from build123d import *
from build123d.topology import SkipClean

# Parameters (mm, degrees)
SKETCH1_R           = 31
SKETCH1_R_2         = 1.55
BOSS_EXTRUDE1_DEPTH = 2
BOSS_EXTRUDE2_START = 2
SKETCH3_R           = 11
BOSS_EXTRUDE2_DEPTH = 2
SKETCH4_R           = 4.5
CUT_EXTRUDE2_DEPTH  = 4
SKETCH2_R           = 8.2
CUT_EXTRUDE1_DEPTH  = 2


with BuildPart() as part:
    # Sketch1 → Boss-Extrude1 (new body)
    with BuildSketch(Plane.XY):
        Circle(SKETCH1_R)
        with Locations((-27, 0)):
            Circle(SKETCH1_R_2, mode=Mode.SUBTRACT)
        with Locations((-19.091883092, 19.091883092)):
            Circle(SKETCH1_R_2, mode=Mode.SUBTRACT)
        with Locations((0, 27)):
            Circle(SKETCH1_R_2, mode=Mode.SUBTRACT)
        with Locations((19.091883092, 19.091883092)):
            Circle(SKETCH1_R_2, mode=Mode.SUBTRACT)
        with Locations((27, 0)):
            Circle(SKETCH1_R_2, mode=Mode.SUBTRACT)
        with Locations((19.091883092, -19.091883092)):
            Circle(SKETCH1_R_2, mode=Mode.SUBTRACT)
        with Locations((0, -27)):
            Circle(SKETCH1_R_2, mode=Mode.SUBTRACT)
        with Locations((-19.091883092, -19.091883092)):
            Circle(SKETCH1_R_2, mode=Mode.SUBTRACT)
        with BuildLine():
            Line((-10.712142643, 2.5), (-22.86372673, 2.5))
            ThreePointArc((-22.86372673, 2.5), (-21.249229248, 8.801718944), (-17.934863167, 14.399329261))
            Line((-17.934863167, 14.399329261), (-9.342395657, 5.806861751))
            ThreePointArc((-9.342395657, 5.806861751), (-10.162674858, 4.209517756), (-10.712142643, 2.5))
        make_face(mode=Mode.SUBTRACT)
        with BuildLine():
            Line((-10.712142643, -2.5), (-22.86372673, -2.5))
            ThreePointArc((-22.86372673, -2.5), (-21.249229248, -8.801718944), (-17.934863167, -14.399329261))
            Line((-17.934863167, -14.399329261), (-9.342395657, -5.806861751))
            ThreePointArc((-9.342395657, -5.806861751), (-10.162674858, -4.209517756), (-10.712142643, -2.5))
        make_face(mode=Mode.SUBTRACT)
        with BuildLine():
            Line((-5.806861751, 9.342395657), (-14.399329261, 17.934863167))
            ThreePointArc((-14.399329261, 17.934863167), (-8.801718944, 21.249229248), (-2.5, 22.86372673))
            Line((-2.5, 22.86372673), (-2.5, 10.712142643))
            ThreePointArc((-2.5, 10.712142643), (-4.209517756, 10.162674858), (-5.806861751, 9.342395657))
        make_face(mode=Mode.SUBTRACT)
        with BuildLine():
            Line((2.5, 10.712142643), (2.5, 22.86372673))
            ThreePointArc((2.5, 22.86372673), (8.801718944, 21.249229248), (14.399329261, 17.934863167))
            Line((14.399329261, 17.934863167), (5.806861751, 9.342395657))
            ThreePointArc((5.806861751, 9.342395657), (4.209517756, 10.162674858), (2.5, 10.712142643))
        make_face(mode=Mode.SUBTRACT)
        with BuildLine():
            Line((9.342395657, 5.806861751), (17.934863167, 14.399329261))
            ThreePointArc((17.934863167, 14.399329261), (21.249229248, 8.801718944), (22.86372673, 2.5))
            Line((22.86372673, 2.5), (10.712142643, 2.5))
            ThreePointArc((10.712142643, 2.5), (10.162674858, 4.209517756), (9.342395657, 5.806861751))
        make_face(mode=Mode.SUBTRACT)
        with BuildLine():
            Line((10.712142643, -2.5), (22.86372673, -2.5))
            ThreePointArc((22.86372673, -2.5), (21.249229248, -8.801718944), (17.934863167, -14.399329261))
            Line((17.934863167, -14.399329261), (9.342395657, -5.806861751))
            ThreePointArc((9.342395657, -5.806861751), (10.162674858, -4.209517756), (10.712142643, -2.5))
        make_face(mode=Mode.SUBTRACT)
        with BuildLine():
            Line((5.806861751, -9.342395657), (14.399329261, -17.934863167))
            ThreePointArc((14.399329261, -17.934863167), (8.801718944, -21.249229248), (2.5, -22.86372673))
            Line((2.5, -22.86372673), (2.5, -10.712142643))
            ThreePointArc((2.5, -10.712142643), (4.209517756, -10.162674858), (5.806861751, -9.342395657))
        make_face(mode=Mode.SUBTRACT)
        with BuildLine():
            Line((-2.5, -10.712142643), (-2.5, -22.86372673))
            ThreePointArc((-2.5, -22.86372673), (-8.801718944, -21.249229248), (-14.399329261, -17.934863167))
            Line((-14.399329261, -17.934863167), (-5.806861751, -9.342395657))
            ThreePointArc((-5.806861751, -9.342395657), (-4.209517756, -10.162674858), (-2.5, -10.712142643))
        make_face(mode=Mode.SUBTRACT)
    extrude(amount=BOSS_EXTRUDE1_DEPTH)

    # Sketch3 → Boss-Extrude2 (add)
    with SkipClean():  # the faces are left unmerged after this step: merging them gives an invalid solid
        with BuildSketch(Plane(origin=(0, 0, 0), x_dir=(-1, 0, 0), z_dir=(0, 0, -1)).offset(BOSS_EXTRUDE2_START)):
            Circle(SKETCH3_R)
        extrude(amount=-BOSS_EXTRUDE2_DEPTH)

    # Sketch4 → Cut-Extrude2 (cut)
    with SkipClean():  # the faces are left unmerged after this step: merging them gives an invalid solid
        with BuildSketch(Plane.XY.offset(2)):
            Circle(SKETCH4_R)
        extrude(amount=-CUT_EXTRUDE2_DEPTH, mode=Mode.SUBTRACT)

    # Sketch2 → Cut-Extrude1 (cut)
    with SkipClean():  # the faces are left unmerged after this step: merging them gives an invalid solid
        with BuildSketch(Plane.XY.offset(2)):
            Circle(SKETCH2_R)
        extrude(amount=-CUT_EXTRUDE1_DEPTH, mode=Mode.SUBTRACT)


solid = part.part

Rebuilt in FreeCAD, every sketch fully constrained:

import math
import FreeCAD as App
import Part
import Sketcher
from FreeCAD import Vector
Q = App.Units.Quantity

doc = App.newDocument("Part")
body = doc.addObject("PartDesign::Body", "Body")

# Sketch on XY plane
sketch1 = doc.addObject("Sketcher::SketchObject", "Sketch")
body.addObject(sketch1)
sketch1.AttachmentSupport = (doc.XY_Plane, [""])
sketch1.MapMode = "FlatFace"
sketch1.addGeometry([
    Part.Circle(Vector(0, 0, 0), Vector(0, 0, 1), 31),  # 0
    Part.Circle(Vector(-19.1, -19.1, 0), Vector(0, 0, 1), 1.6),  # 1
    Part.ArcOfCircle(Part.Circle(Vector(0, 0, 0), Vector(0, 0, 1), 11), math.radians(-121.86), math.radians(-103.14)),  # 2
    Part.LineSegment(Vector(-2.5, -10.7, 0), Vector(-2.5, -22.9, 0)),  # 3
    Part.ArcOfCircle(Part.Circle(Vector(0, 0, 0), Vector(0, 0, 1), 23), math.radians(-129), math.radians(-96)),  # 4
    Part.LineSegment(Vector(-14.4, -17.9, 0), Vector(-5.8, -9.3, 0)),  # 5
    Part.LineSegment(Vector(-22.9, -2.5, 0), Vector(-10.7, -2.5, 0)),  # 6
    Part.ArcOfCircle(Part.Circle(Vector(0, 0, 0), Vector(0, 0, 1), 11), math.radians(-166.86), math.radians(-148.14)),  # 7
    Part.LineSegment(Vector(-9.3, -5.8, 0), Vector(-17.9, -14.4, 0)),  # 8
    Part.ArcOfCircle(Part.Circle(Vector(0, 0, 0), Vector(0, 0, 1), 23), math.radians(-174), math.radians(-141)),  # 9
    Part.Circle(Vector(0, -27, 0), Vector(0, 0, 1), 1.6),  # 10
    Part.ArcOfCircle(Part.Circle(Vector(0, 0, 0), Vector(0, 0, 1), 11), math.radians(-76.86), math.radians(-58.14)),  # 11
    Part.LineSegment(Vector(5.8, -9.3, 0), Vector(14.4, -17.9, 0)),  # 12
    Part.ArcOfCircle(Part.Circle(Vector(0, 0, 0), Vector(0, 0, 1), 23), math.radians(-84), math.radians(-51)),  # 13
    Part.LineSegment(Vector(2.5, -22.9, 0), Vector(2.5, -10.7, 0)),  # 14
    Part.Circle(Vector(19.1, -19.1, 0), Vector(0, 0, 1), 1.6),  # 15
    Part.ArcOfCircle(Part.Circle(Vector(0, 0, 0), Vector(0, 0, 1), 11), math.radians(-31.86), math.radians(-13.14)),  # 16
    Part.LineSegment(Vector(10.7, -2.5, 0), Vector(22.9, -2.5, 0)),  # 17
    Part.ArcOfCircle(Part.Circle(Vector(0, 0, 0), Vector(0, 0, 1), 23), math.radians(-39), math.radians(-6)),  # 18
    Part.LineSegment(Vector(17.9, -14.4, 0), Vector(9.3, -5.8, 0)),  # 19
    Part.Circle(Vector(-27, 0, 0), Vector(0, 0, 1), 1.6),  # 20
    Part.ArcOfCircle(Part.Circle(Vector(0, 0, 0), Vector(0, 0, 1), 11), math.radians(148.14), math.radians(166.86)),  # 21
    Part.LineSegment(Vector(-10.7, 2.5, 0), Vector(-22.9, 2.5, 0)),  # 22
    Part.ArcOfCircle(Part.Circle(Vector(0, 0, 0), Vector(0, 0, 1), 23), math.radians(141), math.radians(174)),  # 23
    Part.LineSegment(Vector(-17.9, 14.4, 0), Vector(-9.3, 5.8, 0)),  # 24
    Part.Circle(Vector(-19.1, 19.1, 0), Vector(0, 0, 1), 1.6),  # 25
    Part.ArcOfCircle(Part.Circle(Vector(0, 0, 0), Vector(0, 0, 1), 11), math.radians(103.14), math.radians(121.86)),  # 26
    Part.LineSegment(Vector(-5.8, 9.3, 0), Vector(-14.4, 17.9, 0)),  # 27
    Part.ArcOfCircle(Part.Circle(Vector(0, 0, 0), Vector(0, 0, 1), 23), math.radians(96), math.radians(129)),  # 28
    Part.LineSegment(Vector(-2.5, 22.9, 0), Vector(-2.5, 10.7, 0)),  # 29
    Part.Circle(Vector(27, 0, 0), Vector(0, 0, 1), 1.6),  # 30
    Part.ArcOfCircle(Part.Circle(Vector(0, 0, 0), Vector(0, 0, 1), 11), math.radians(13.14), math.radians(31.86)),  # 31
    Part.LineSegment(Vector(9.3, 5.8, 0), Vector(17.9, 14.4, 0)),  # 32
    Part.ArcOfCircle(Part.Circle(Vector(0, 0, 0), Vector(0, 0, 1), 23), math.radians(6), math.radians(39)),  # 33
    Part.LineSegment(Vector(22.9, 2.5, 0), Vector(10.7, 2.5, 0)),  # 34
    Part.ArcOfCircle(Part.Circle(Vector(0, 0, 0), Vector(0, 0, 1), 11), math.radians(58.14), math.radians(76.86)),  # 35
    Part.LineSegment(Vector(2.5, 10.7, 0), Vector(2.5, 22.9, 0)),  # 36
    Part.ArcOfCircle(Part.Circle(Vector(0, 0, 0), Vector(0, 0, 1), 23), math.radians(51), math.radians(84)),  # 37
    Part.LineSegment(Vector(14.4, 17.9, 0), Vector(5.8, 9.3, 0)),  # 38
    Part.Circle(Vector(0, 27, 0), Vector(0, 0, 1), 1.6),  # 39
    Part.Circle(Vector(19.1, 19.1, 0), Vector(0, 0, 1), 1.6),  # 40
], False)
sketch1.addConstraint([
    Sketcher.Constraint("Coincident", 2, 2, 3, 1),
    Sketcher.Constraint("Coincident", 3, 2, 4, 2),
    Sketcher.Constraint("Coincident", 4, 1, 5, 1),
    Sketcher.Constraint("Coincident", 5, 2, 2, 1),
    Sketcher.Constraint("Coincident", 6, 2, 7, 1),
    Sketcher.Constraint("Coincident", 7, 2, 8, 1),
    Sketcher.Constraint("Coincident", 8, 2, 9, 2),
    Sketcher.Constraint("Coincident", 9, 1, 6, 1),
    Sketcher.Constraint("Coincident", 11, 2, 12, 1),
    Sketcher.Constraint("Coincident", 12, 2, 13, 2),
    Sketcher.Constraint("Coincident", 13, 1, 14, 1),
    Sketcher.Constraint("Coincident", 14, 2, 11, 1),
    Sketcher.Constraint("Coincident", 16, 2, 17, 1),
    Sketcher.Constraint("Coincident", 17, 2, 18, 2),
    Sketcher.Constraint("Coincident", 18, 1, 19, 1),
    Sketcher.Constraint("Coincident", 19, 2, 16, 1),
    Sketcher.Constraint("Coincident", 21, 2, 22, 1),
    Sketcher.Constraint("Coincident", 22, 2, 23, 2),
    Sketcher.Constraint("Coincident", 23, 1, 24, 1),
    Sketcher.Constraint("Coincident", 24, 2, 21, 1),
    Sketcher.Constraint("Coincident", 26, 2, 27, 1),
    Sketcher.Constraint("Coincident", 27, 2, 28, 2),
    Sketcher.Constraint("Coincident", 28, 1, 29, 1),
    Sketcher.Constraint("Coincident", 29, 2, 26, 1),
    Sketcher.Constraint("Coincident", 31, 2, 32, 1),
    Sketcher.Constraint("Coincident", 32, 2, 33, 2),
    Sketcher.Constraint("Coincident", 33, 1, 34, 1),
    Sketcher.Constraint("Coincident", 34, 2, 31, 1),
    Sketcher.Constraint("Coincident", 35, 2, 36, 1),
    Sketcher.Constraint("Coincident", 36, 2, 37, 2),
    Sketcher.Constraint("Coincident", 37, 1, 38, 1),
    Sketcher.Constraint("Coincident", 38, 2, 35, 1),
    Sketcher.Constraint("Vertical", 3),
    Sketcher.Constraint("Horizontal", 6),
    Sketcher.Constraint("Vertical", 14),
    Sketcher.Constraint("Horizontal", 17),
    Sketcher.Constraint("Horizontal", 22),
    Sketcher.Constraint("Vertical", 29),
    Sketcher.Constraint("Horizontal", 34),
    Sketcher.Constraint("Vertical", 36),
    Sketcher.Constraint("Coincident", 0, 3, -1, 1),
    Sketcher.Constraint("Coincident", 2, 3, -1, 1),
    Sketcher.Constraint("Coincident", 4, 3, -1, 1),
    Sketcher.Constraint("Coincident", 7, 3, -1, 1),
    Sketcher.Constraint("Coincident", 9, 3, -1, 1),
    Sketcher.Constraint("Coincident", 11, 3, -1, 1),
    Sketcher.Constraint("Coincident", 13, 3, -1, 1),
    Sketcher.Constraint("Coincident", 16, 3, -1, 1),
    Sketcher.Constraint("Coincident", 18, 3, -1, 1),
    Sketcher.Constraint("Coincident", 21, 3, -1, 1),
    Sketcher.Constraint("Coincident", 23, 3, -1, 1),
    Sketcher.Constraint("Coincident", 26, 3, -1, 1),
    Sketcher.Constraint("Coincident", 28, 3, -1, 1),
    Sketcher.Constraint("Coincident", 31, 3, -1, 1),
    Sketcher.Constraint("Coincident", 33, 3, -1, 1),
    Sketcher.Constraint("Coincident", 35, 3, -1, 1),
    Sketcher.Constraint("Coincident", 37, 3, -1, 1),
    Sketcher.Constraint("Equal", 2, 7),
    Sketcher.Constraint("Equal", 4, 9),
    Sketcher.Constraint("Equal", 1, 10),
    Sketcher.Constraint("Equal", 7, 11),
    Sketcher.Constraint("Equal", 9, 13),
    Sketcher.Constraint("Equal", 10, 15),
    Sketcher.Constraint("Equal", 11, 16),
    Sketcher.Constraint("Equal", 13, 18),
    Sketcher.Constraint("Equal", 15, 20),
    Sketcher.Constraint("Equal", 16, 21),
    Sketcher.Constraint("Equal", 18, 23),
    Sketcher.Constraint("Equal", 20, 25),
    Sketcher.Constraint("Equal", 21, 26),
    Sketcher.Constraint("Equal", 23, 28),
    Sketcher.Constraint("Equal", 25, 30),
    Sketcher.Constraint("Equal", 26, 31),
    Sketcher.Constraint("Equal", 28, 33),
    Sketcher.Constraint("Equal", 31, 35),
    Sketcher.Constraint("Equal", 33, 37),
    Sketcher.Constraint("Equal", 30, 39),
    Sketcher.Constraint("Equal", 39, 40),
    Sketcher.Constraint("Symmetric", 15, 3, 25, 3, -1, 1),
    Sketcher.Constraint("Symmetric", 20, 3, 30, 3, -1, 1),
    Sketcher.Constraint("Symmetric", 10, 3, 39, 3, -1, 1),
    Sketcher.Constraint("Symmetric", 1, 3, 40, 3, -1, 1),
    Sketcher.Constraint("Symmetric", 1, 3, 15, 3, -2),
    Sketcher.Constraint("PointOnObject", 10, 3, -2),
    Sketcher.Constraint("PointOnObject", 20, 3, -1),
    Sketcher.Constraint("Parallel", 5, 8),
    Sketcher.Constraint("Perpendicular", 8, 12),
    Sketcher.Constraint("Parallel", 12, 19),
    Sketcher.Constraint("Parallel", 19, 24),
    Sketcher.Constraint("Parallel", 24, 27),
    Sketcher.Constraint("Perpendicular", 27, 32),
    Sketcher.Constraint("Parallel", 32, 38),
    Sketcher.Constraint("Horizontal", 5, 2, 11, 2),
    Sketcher.Constraint("Horizontal", 4, 1, 12, 2),
    Sketcher.Constraint("Horizontal", 3, 2, 13, 1),
    Sketcher.Constraint("Horizontal", 9, 1, 16, 2),
    Sketcher.Constraint("Horizontal", 8, 2, 18, 1),
    Sketcher.Constraint("Horizontal", 24, 2, 31, 2),
    Sketcher.Constraint("Horizontal", 22, 2, 33, 1),
    Sketcher.Constraint("Horizontal", 29, 2, 35, 2),
    Sketcher.Constraint("Horizontal", 27, 2, 37, 1),
    Sketcher.Constraint("Vertical", 6, 2, 21, 2),
    Sketcher.Constraint("Vertical", 8, 2, 23, 1),
    Sketcher.Constraint("Vertical", 5, 2, 26, 2),
    Sketcher.Constraint("Vertical", 3, 2, 28, 1),
    Sketcher.Constraint("Equal", 34, 3),
    Sketcher.Constraint("Equal", 5, 8),
    Sketcher.Constraint("Diameter", 0, Q("62 mm")),
    Sketcher.Constraint("Radius", 2, Q("11 mm")),
    Sketcher.Constraint("Radius", 4, Q("23 mm")),
    Sketcher.Constraint("Diameter", 1, Q("3.1 mm")),
    Sketcher.Constraint("DistanceY", 10, 3, -1, 1, Q("27 mm")),
    Sketcher.Constraint("DistanceX", 20, 3, -1, 1, Q("27 mm")),
    Sketcher.Constraint("DistanceX", 3, 2, 13, 1, Q("5 mm")),
    Sketcher.Constraint("DistanceX", 8, 2, 5, 2, Q("12.128001 mm")),
    Sketcher.Constraint("DistanceY", 1, 3, 4, 1, Q("1.15702 mm")),
    Sketcher.Constraint("DistanceX", 1, 3, 8, 2, Q("1.15702 mm")),
])
pad1 = doc.addObject("PartDesign::Pad", "Pad")
body.addObject(pad1)
pad1.Profile = sketch1
pad1.Length = 2

# Sketch on XY plane
sketch2 = doc.addObject("Sketcher::SketchObject", "Sketch001")
body.addObject(sketch2)
sketch2.AttachmentSupport = (doc.XY_Plane, [""])
sketch2.MapMode = "FlatFace"
sketch2.AttachmentOffset = App.Placement(Vector(0, 0, -2), App.Rotation())
sketch2.addGeometry(Part.Circle(Vector(0, 0, 0), Vector(0, 0, 1), 11), False)
sketch2.addConstraint([
    Sketcher.Constraint("Coincident", 0, 3, -1, 1),
    Sketcher.Constraint("Diameter", 0, Q("22 mm")),
])
pad2 = doc.addObject("PartDesign::Pad", "Pad001")
body.addObject(pad2)
pad2.Profile = sketch2
pad2.Length = 2

# Sketch on XY plane
sketch3 = doc.addObject("Sketcher::SketchObject", "Sketch002")
body.addObject(sketch3)
sketch3.AttachmentSupport = (doc.XY_Plane, [""])
sketch3.MapMode = "FlatFace"
sketch3.AttachmentOffset = App.Placement(Vector(0, 0, 2), App.Rotation())
sketch3.addGeometry(Part.Circle(Vector(0, 0, 0), Vector(0, 0, 1), 4.5), False)
sketch3.addConstraint([
    Sketcher.Constraint("Coincident", 0, 3, -1, 1),
    Sketcher.Constraint("Diameter", 0, Q("9 mm")),
])
pocket1 = doc.addObject("PartDesign::Pocket", "Pocket")
body.addObject(pocket1)
pocket1.Profile = sketch3
pocket1.Length = 4

# Sketch on XY plane
sketch4 = doc.addObject("Sketcher::SketchObject", "Sketch003")
body.addObject(sketch4)
sketch4.AttachmentSupport = (doc.XY_Plane, [""])
sketch4.MapMode = "FlatFace"
sketch4.AttachmentOffset = App.Placement(Vector(0, 0, 2), App.Rotation())
sketch4.addGeometry(Part.Circle(Vector(0, 0, 0), Vector(0, 0, 1), 8), False)
sketch4.addConstraint([
    Sketcher.Constraint("Coincident", 0, 3, -1, 1),
    Sketcher.Constraint("Diameter", 0, Q("16.4 mm")),
])
pocket2 = doc.addObject("PartDesign::Pocket", "Pocket001")
body.addObject(pocket2)
pocket2.Profile = sketch4
pocket2.Length = 2

doc.recompute()
